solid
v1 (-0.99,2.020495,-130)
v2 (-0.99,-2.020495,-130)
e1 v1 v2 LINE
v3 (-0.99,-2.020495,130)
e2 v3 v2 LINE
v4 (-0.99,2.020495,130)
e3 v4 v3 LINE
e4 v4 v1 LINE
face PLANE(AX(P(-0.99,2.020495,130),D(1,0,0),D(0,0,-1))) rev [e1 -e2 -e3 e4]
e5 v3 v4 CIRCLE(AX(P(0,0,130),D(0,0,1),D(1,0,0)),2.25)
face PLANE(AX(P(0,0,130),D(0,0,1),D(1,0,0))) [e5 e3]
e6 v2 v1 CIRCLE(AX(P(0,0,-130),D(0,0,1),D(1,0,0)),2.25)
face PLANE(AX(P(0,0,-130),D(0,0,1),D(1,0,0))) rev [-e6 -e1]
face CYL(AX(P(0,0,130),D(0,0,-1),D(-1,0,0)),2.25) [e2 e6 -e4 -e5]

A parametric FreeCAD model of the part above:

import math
import FreeCAD as App
import Part
import Sketcher

doc = App.newDocument("Part")
body = doc.addObject("PartDesign::Body", "Body")

# Sketch on XY plane
sketch1 = body.newObject("Sketcher::SketchObject", "Sketch")
sketch1.AttachmentSupport = (doc.getObject("XY_Plane"), [""])
sketch1.MapMode = "FlatFace"
sketch1.addGeometry([
    Part.LineSegment(App.Vector(-1, 2, 0), App.Vector(-1, -2, 0)),
    Part.ArcOfCircle(Part.Circle(App.Vector(0, 0, 0), App.Vector(0, 0, 1), 2.2), math.radians(-116), math.radians(116)),
], False)
sketch1.addConstraint([
    Sketcher.Constraint("Coincident", 0, 1, 1, 2),
    Sketcher.Constraint("Coincident", 1, 1, 0, 2),
    Sketcher.Constraint("Vertical", 0),
    Sketcher.Constraint("Coincident", 1, 3, -1, 1),
    Sketcher.Constraint("Radius", 1, 2.25),
    Sketcher.Constraint("DistanceX", 0, 1, -1, 1, 0.99),
])
pad1 = body.newObject("PartDesign::Pad", "Pad")
pad1.Profile = sketch1
pad1.Length = 260
pad1.Midplane = True

doc.recompute()
